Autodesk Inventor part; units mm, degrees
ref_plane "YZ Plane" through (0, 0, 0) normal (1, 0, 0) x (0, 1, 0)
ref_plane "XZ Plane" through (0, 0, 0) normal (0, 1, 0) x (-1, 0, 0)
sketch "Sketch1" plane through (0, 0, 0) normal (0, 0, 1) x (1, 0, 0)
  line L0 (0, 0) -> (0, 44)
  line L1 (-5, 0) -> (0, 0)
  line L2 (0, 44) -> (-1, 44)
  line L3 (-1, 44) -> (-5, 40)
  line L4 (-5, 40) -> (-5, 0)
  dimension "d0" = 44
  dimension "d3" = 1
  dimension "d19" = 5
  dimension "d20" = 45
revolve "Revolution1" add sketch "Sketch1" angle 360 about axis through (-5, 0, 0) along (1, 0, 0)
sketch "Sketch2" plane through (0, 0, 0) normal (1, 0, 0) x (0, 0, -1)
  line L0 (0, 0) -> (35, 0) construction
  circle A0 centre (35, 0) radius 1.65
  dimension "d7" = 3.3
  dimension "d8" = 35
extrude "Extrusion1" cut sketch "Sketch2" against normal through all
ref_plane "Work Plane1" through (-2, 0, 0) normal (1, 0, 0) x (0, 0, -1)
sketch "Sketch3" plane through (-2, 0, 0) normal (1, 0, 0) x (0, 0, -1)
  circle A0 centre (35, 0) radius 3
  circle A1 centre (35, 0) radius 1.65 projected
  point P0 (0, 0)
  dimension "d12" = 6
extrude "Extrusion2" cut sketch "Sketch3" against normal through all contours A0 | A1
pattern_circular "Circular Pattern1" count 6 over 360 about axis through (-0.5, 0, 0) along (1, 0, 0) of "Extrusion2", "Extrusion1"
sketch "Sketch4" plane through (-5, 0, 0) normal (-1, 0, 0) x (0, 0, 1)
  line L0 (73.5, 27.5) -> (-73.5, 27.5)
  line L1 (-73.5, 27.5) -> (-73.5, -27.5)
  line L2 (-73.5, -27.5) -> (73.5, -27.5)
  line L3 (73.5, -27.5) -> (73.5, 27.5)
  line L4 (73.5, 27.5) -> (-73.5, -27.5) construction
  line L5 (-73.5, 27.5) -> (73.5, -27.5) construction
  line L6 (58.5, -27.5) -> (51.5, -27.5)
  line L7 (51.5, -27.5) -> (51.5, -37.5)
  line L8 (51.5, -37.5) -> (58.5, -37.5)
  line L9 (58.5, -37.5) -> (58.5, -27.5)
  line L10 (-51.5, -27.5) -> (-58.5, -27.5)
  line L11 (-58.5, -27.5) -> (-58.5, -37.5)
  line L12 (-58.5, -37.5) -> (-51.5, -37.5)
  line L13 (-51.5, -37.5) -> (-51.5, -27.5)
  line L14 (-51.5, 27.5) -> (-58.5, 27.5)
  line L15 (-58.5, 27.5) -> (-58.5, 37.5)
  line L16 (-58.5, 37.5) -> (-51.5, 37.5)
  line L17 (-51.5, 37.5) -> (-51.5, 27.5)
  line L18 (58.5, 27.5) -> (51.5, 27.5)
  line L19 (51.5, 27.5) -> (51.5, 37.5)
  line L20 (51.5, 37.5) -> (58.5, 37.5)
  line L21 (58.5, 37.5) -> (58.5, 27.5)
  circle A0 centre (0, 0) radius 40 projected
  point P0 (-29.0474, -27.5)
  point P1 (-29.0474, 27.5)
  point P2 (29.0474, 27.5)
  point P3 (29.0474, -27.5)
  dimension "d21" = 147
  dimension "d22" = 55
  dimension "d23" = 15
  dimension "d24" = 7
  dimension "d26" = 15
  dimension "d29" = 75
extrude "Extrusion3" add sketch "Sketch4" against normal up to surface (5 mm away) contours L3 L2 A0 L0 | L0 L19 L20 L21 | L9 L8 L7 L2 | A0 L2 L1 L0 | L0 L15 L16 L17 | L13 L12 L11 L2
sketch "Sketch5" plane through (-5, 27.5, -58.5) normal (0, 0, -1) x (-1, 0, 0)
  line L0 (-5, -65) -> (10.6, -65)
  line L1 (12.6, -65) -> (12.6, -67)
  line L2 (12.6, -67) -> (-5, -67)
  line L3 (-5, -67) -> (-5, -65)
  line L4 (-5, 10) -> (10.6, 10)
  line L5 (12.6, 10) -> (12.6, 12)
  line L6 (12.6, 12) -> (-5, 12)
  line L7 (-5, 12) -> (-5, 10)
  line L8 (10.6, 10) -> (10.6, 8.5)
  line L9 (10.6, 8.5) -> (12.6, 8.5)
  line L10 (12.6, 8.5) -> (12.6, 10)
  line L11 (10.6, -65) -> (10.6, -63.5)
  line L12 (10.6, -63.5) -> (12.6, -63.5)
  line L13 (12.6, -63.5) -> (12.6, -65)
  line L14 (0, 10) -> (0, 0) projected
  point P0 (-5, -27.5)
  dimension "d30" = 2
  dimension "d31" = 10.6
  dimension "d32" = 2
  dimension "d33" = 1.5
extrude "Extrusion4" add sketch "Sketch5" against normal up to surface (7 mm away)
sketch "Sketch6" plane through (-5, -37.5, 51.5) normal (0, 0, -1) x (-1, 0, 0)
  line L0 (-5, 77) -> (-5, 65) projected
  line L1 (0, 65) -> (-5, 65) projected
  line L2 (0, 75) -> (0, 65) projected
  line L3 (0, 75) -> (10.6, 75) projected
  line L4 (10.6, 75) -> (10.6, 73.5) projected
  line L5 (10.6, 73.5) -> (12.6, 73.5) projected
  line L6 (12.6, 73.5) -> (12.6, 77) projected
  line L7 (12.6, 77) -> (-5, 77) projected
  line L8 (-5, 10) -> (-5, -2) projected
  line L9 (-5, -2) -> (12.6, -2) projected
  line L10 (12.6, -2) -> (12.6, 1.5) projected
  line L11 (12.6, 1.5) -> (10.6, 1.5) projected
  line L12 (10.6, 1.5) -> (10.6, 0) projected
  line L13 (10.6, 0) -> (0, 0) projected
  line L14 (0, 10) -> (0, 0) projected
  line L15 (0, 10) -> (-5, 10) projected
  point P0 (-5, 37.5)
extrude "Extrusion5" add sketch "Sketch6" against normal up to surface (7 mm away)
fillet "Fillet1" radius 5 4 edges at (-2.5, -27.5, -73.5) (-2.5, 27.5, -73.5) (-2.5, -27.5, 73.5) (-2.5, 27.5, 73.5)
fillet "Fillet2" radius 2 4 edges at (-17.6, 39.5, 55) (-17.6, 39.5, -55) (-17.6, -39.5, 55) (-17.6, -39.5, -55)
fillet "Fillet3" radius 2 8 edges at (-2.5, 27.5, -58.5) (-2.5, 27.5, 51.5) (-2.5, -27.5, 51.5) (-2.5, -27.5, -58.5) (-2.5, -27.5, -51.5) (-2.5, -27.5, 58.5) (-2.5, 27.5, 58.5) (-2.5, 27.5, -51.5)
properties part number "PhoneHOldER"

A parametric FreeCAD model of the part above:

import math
import FreeCAD as App
import Part
import Sketcher
from FreeCAD import Vector
Q = App.Units.Quantity


def edges_at(feature, points):
    """Names of the edges that pass closest to the given points."""
    edges = feature.Shape.Edges
    near = lambda p: min(range(len(edges)), key=lambda i: edges[i].distToShape(Part.Vertex(*p))[0])
    return sorted({f"Edge{near(p) + 1}" for p in points})


def add_polygon(sketch, points):
    """Adds a closed chain of lines whose ends are joined by coincident constraints."""
    first, n = sketch.GeometryCount, len(points)
    for a, b in zip(points, points[1:] + points[:1]):
        sketch.addGeometry(Part.LineSegment(App.Vector(*a, 0), App.Vector(*b, 0)), False)
    for i in range(n):
        sketch.addConstraint(Sketcher.Constraint("Coincident", first + i, 2, first + (i + 1) % n, 1))

doc = App.newDocument("Part")
body = doc.addObject("PartDesign::Body", "Body")

sketch1 = body.newObject("Sketcher::SketchObject", "Sketch")
sketch1.AttachmentSupport = (doc.getObject("XY_Plane"), [""])
sketch1.MapMode = "FlatFace"
add_polygon(sketch1, [(-5, 0), (0, 0), (0, 44), (-1, 44), (-5, 40)])
sketch1.addConstraint([
    Sketcher.Constraint("Horizontal", 0),
    Sketcher.Constraint("Vertical", 1),
    Sketcher.Constraint("Horizontal", 2),
    Sketcher.Constraint("Vertical", 4),
    Sketcher.Constraint("Coincident", 0, 2, -1, 1),
    Sketcher.Constraint("DistanceX", 0, 1, 0, 2, Q("5 mm")),
    Sketcher.Constraint("DistanceX", 2, 2, 2, 1, Q("1 mm")),
    Sketcher.Constraint("DistanceY", 1, 1, 1, 2, Q("44 mm")),
    Sketcher.Constraint("DistanceY", 4, 2, 4, 1, Q("40 mm")),
])
revolution = body.newObject("PartDesign::Revolution", "Revolution")
revolution.Profile = sketch1
revolution.ReferenceAxis = (sketch1, ["H_Axis"])
revolution.Angle = 360

sketch2 = body.newObject("Sketcher::SketchObject", "Sketch001")
sketch2.AttachmentSupport = (doc.getObject("YZ_Plane"), [""])
sketch2.MapMode = "FlatFace"
sketch2.addGeometry(Part.Circle(Vector(0, -35, 0), Vector(0, 0, 1), 1.6), False)
sketch2.addConstraint([
    Sketcher.Constraint("PointOnObject", 0, 3, -2),
    Sketcher.Constraint("Diameter", 0, Q("3.3 mm")),
    Sketcher.Constraint("DistanceY", 0, 3, -1, 1, Q("35 mm")),
])
pocket1 = body.newObject("PartDesign::Pocket", "Pocket")
pocket1.Profile = sketch2
pocket1.Type = "ThroughAll"

sketch3 = body.newObject("Sketcher::SketchObject", "Sketch002")
sketch3.AttachmentSupport = (doc.getObject("YZ_Plane"), [""])
sketch3.MapMode = "FlatFace"
sketch3.AttachmentOffset = App.Placement(Vector(0, 0, -2), App.Rotation())
sketch3.addGeometry(Part.Circle(Vector(0, -35, 0), Vector(0, 0, 1), 3), False)
sketch3.addConstraint([
    Sketcher.Constraint("PointOnObject", 0, 3, -2),
    Sketcher.Constraint("Diameter", 0, Q("6 mm")),
    Sketcher.Constraint("DistanceY", 0, 3, -1, 1, Q("35 mm")),
])
pocket2 = body.newObject("PartDesign::Pocket", "Pocket001")
pocket2.Profile = sketch3
pocket2.Type = "ThroughAll"
doc.recompute()

polarpattern = body.newObject("PartDesign::PolarPattern", "PolarPattern")
polarpattern.Originals = [pocket2, pocket1]
polarpattern.Axis = (doc.getObject("X_Axis"), [""])
polarpattern.Angle = 360
polarpattern.Occurrences = 6
body.Tip = polarpattern

sketch4 = body.newObject("Sketcher::SketchObject", "Sketch003")
sketch4.AttachmentSupport = (doc.getObject("YZ_Plane"), [""])
sketch4.MapMode = "FlatFace"
sketch4.AttachmentOffset = App.Placement(Vector(0, 0, -5), App.Rotation())
sketch4.addGeometry([
    Part.LineSegment(Vector(-28, 74, 0), Vector(28, 74, 0)),
    Part.LineSegment(Vector(28, 74, 0), Vector(28, 58, 0)),
    Part.LineSegment(Vector(28, 58, 0), Vector(38, 58, 0)),
    Part.LineSegment(Vector(38, 58, 0), Vector(38, 52, 0)),
    Part.LineSegment(Vector(38, 52, 0), Vector(28, 52, 0)),
    Part.LineSegment(Vector(28, 52, 0), Vector(28, 29, 0)),
    Part.ArcOfCircle(Part.Circle(Vector(0, 0, 0), Vector(0, 0, 1), 40), math.radians(47), math.radians(133)),
    Part.LineSegment(Vector(-28, 29, 0), Vector(-28, 52, 0)),
    Part.LineSegment(Vector(-28, 52, 0), Vector(-38, 52, 0)),
    Part.LineSegment(Vector(-38, 52, 0), Vector(-38, 58, 0)),
    Part.LineSegment(Vector(-38, 58, 0), Vector(-28, 58, 0)),
    Part.LineSegment(Vector(-28, 58, 0), Vector(-28, 74, 0)),
    Part.ArcOfCircle(Part.Circle(Vector(0, 0, 0), Vector(0, 0, 1), 40), math.radians(-133), math.radians(-47)),
    Part.LineSegment(Vector(28, -29, 0), Vector(28, -52, 0)),
    Part.LineSegment(Vector(28, -52, 0), Vector(38, -52, 0)),
    Part.LineSegment(Vector(38, -52, 0), Vector(38, -58, 0)),
    Part.LineSegment(Vector(38, -58, 0), Vector(28, -58, 0)),
    Part.LineSegment(Vector(28, -58, 0), Vector(28, -74, 0)),
    Part.LineSegment(Vector(28, -74, 0), Vector(-28, -74, 0)),
    Part.LineSegment(Vector(-28, -74, 0), Vector(-28, -58, 0)),
    Part.LineSegment(Vector(-28, -58, 0), Vector(-38, -58, 0)),
    Part.LineSegment(Vector(-38, -58, 0), Vector(-38, -52, 0)),
    Part.LineSegment(Vector(-38, -52, 0), Vector(-28, -52, 0)),
    Part.LineSegment(Vector(-28, -52, 0), Vector(-28, -29, 0)),
], False)
sketch4.addConstraint([
    Sketcher.Constraint("Coincident", 0, 2, 1, 1),
    Sketcher.Constraint("Coincident", 1, 2, 2, 1),
    Sketcher.Constraint("Coincident", 2, 2, 3, 1),
    Sketcher.Constraint("Coincident", 3, 2, 4, 1),
    Sketcher.Constraint("Coincident", 4, 2, 5, 1),
    Sketcher.Constraint("Coincident", 5, 2, 6, 1),
    Sketcher.Constraint("Coincident", 6, 2, 7, 1),
    Sketcher.Constraint("Coincident", 7, 2, 8, 1),
    Sketcher.Constraint("Coincident", 8, 2, 9, 1),
    Sketcher.Constraint("Coincident", 9, 2, 10, 1),
    Sketcher.Constraint("Coincident", 10, 2, 11, 1),
    Sketcher.Constraint("Coincident", 11, 2, 0, 1),
    Sketcher.Constraint("Coincident", 12, 2, 13, 1),
    Sketcher.Constraint("Coincident", 13, 2, 14, 1),
    Sketcher.Constraint("Coincident", 14, 2, 15, 1),
    Sketcher.Constraint("Coincident", 15, 2, 16, 1),
    Sketcher.Constraint("Coincident", 16, 2, 17, 1),
    Sketcher.Constraint("Coincident", 17, 2, 18, 1),
    Sketcher.Constraint("Coincident", 18, 2, 19, 1),
    Sketcher.Constraint("Coincident", 19, 2, 20, 1),
    Sketcher.Constraint("Coincident", 20, 2, 21, 1),
    Sketcher.Constraint("Coincident", 21, 2, 22, 1),
    Sketcher.Constraint("Coincident", 22, 2, 23, 1),
    Sketcher.Constraint("Coincident", 23, 2, 12, 1),
    Sketcher.Constraint("Horizontal", 0),
    Sketcher.Constraint("Vertical", 1),
    Sketcher.Constraint("Horizontal", 2),
    Sketcher.Constraint("Vertical", 3),
    Sketcher.Constraint("Horizontal", 4),
    Sketcher.Constraint("Vertical", 5),
    Sketcher.Constraint("Vertical", 7),
    Sketcher.Constraint("Horizontal", 8),
    Sketcher.Constraint("Vertical", 9),
    Sketcher.Constraint("Horizontal", 10),
    Sketcher.Constraint("Vertical", 11),
    Sketcher.Constraint("Vertical", 13),
    Sketcher.Constraint("Horizontal", 14),
    Sketcher.Constraint("Vertical", 15),
    Sketcher.Constraint("Horizontal", 16),
    Sketcher.Constraint("Vertical", 17),
    Sketcher.Constraint("Horizontal", 18),
    Sketcher.Constraint("Vertical", 19),
    Sketcher.Constraint("Horizontal", 20),
    Sketcher.Constraint("Vertical", 21),
    Sketcher.Constraint("Horizontal", 22),
    Sketcher.Constraint("Vertical", 23),
    Sketcher.Constraint("Coincident", 6, 3, -1, 1),
    Sketcher.Constraint("Coincident", 12, 3, -1, 1),
    Sketcher.Constraint("Equal", 6, 12),
    Sketcher.Constraint("Symmetric", 7, 2, 13, 2, -1, 1),
    Sketcher.Constraint("Symmetric", 9, 2, 15, 2, -1, 1),
    Sketcher.Constraint("Symmetric", 11, 2, 17, 2, -1, 1),
    Sketcher.Constraint("Symmetric", 1, 2, 19, 2, -1, 1),
    Sketcher.Constraint("Symmetric", 3, 2, 21, 2, -1, 1),
    Sketcher.Constraint("Symmetric", 4, 2, 7, 2, -2),
    Sketcher.Constraint("Symmetric", 2, 2, 9, 2, -2),
    Sketcher.Constraint("Horizontal", 12, 2, 23, 2),
    Sketcher.Constraint("Vertical", 1, 2, 4, 2),
    Sketcher.Constraint("Vertical", 7, 2, 10, 2),
    Sketcher.Constraint("DistanceX", 0, 1, 0, 2, Q("55 mm")),
    Sketcher.Constraint("DistanceY", 1, 2, 1, 1, Q("15 mm")),
    Sketcher.Constraint("DistanceY", 3, 2, 3, 1, Q("7 mm")),
    Sketcher.Constraint("Radius", 6, Q("40 mm")),
    Sketcher.Constraint("DistanceX", 2, 1, 2, 2, Q("10 mm")),
    Sketcher.Constraint("DistanceY", -1, 1, 0, 2, Q("73.5 mm")),
])
pad1 = body.newObject("PartDesign::Pad", "Pad")
pad1.Profile = sketch4
pad1.Length = 5

sketch5 = body.newObject("Sketcher::SketchObject", "Sketch004")
sketch5.AttachmentSupport = (doc.getObject("XY_Plane"), [""])
sketch5.MapMode = "FlatFace"
sketch5.AttachmentOffset = App.Placement(Vector(0, 0, -58.5), App.Rotation())
add_polygon(sketch5, [(-15.6, -37.5), (0, -37.5), (0, -39.5), (-17.6, -39.5), (-17.6, -36), (-15.6, -36)])
add_polygon(sketch5, [(0, 39.5), (0, 37.5), (-15.6, 37.5), (-15.6, 36), (-17.6, 36), (-17.6, 39.5)])
sketch5.addConstraint([
    Sketcher.Constraint("Horizontal", 0),
    Sketcher.Constraint("Vertical", 1),
    Sketcher.Constraint("Horizontal", 2),
    Sketcher.Constraint("Vertical", 3),
    Sketcher.Constraint("Horizontal", 4),
    Sketcher.Constraint("Vertical", 5),
    Sketcher.Constraint("Vertical", 6),
    Sketcher.Constraint("Horizontal", 7),
    Sketcher.Constraint("Vertical", 8),
    Sketcher.Constraint("Horizontal", 9),
    Sketcher.Constraint("Vertical", 10),
    Sketcher.Constraint("Horizontal", 11),
    Sketcher.Constraint("Symmetric", 0, 2, 6, 2, -1, 1),
    Sketcher.Constraint("Symmetric", 4, 2, 8, 2, -1),
    Sketcher.Constraint("Symmetric", 2, 2, 10, 2, -1),
    Sketcher.Constraint("PointOnObject", 0, 2, -2),
    Sketcher.Constraint("Equal", 9, 1),
    Sketcher.Constraint("DistanceX", 4, 1, 4, 2, Q("2 mm")),
    Sketcher.Constraint("DistanceY", 5, 2, 5, 1, Q("1.5 mm")),
    Sketcher.Constraint("DistanceX", 0, 1, 0, 2, Q("15.6 mm")),
    Sketcher.Constraint("DistanceY", 3, 2, -1, 1, Q("36 mm")),
])
pad2 = body.newObject("PartDesign::Pad", "Pad001")
pad2.Profile = sketch5
pad2.Length = 7

sketch6 = body.newObject("Sketcher::SketchObject", "Sketch005")
sketch6.AttachmentSupport = (doc.getObject("XY_Plane"), [""])
sketch6.MapMode = "FlatFace"
sketch6.AttachmentOffset = App.Placement(Vector(0, 0, 51.5), App.Rotation())
add_polygon(sketch6, [(-17.6, 39.5), (0, 39.5), (0, 27.5), (-5, 27.5), (-5, 37.5), (-15.6, 37.5), (-15.6, 36), (-17.6, 36)])
add_polygon(sketch6, [(-5, -27.5), (0, -27.5), (0, -39.5), (-17.6, -39.5), (-17.6, -36), (-15.6, -36), (-15.6, -37.5), (-5, -37.5)])
sketch6.addConstraint([
    Sketcher.Constraint("Horizontal", 0),
    Sketcher.Constraint("Vertical", 1),
    Sketcher.Constraint("Horizontal", 2),
    Sketcher.Constraint("Vertical", 3),
    Sketcher.Constraint("Horizontal", 4),
    Sketcher.Constraint("Vertical", 5),
    Sketcher.Constraint("Horizontal", 6),
    Sketcher.Constraint("Vertical", 7),
    Sketcher.Constraint("Horizontal", 8),
    Sketcher.Constraint("Vertical", 9),
    Sketcher.Constraint("Horizontal", 10),
    Sketcher.Constraint("Vertical", 11),
    Sketcher.Constraint("Horizontal", 12),
    Sketcher.Constraint("Vertical", 13),
    Sketcher.Constraint("Horizontal", 14),
    Sketcher.Constraint("Vertical", 15),
    Sketcher.Constraint("Symmetric", 1, 2, 8, 2, -1, 1),
    Sketcher.Constraint("Symmetric", 0, 2, 9, 2, -1),
    Sketcher.Constraint("Symmetric", 6, 2, 11, 2, -1),
    Sketcher.Constraint("Symmetric", 4, 2, 13, 2, -1),
    Sketcher.Constraint("Vertical", 3, 2, 14, 2),
    Sketcher.Constraint("DistanceX", 2, 2, 2, 1, Q("5 mm")),
    Sketcher.Constraint("DistanceX", 6, 2, 6, 1, Q("2 mm")),
    Sketcher.Constraint("DistanceY", 1, 2, 1, 1, Q("12 mm")),
    Sketcher.Constraint("DistanceY", 3, 1, 3, 2, Q("10 mm")),
    Sketcher.Constraint("DistanceX", 0, 1, 0, 2, Q("17.6 mm")),
    Sketcher.Constraint("DistanceY", 5, 2, 5, 1, Q("1.5 mm")),
    Sketcher.Constraint("DistanceY", -1, 1, 5, 2, Q("36 mm")),
])
pad3 = body.newObject("PartDesign::Pad", "Pad002")
pad3.Profile = sketch6
pad3.Length = 7
doc.recompute()

fillet = body.newObject("PartDesign::Fillet", "Fillet")
fillet.Base = (pad3, edges_at(pad3, [
    (-2.5, -27.5, -73.5),
    (-2.5, 27.5, -73.5),
    (-2.5, -27.5, 73.5),
    (-2.5, 27.5, 73.5),
]))
fillet.Radius = 5
doc.recompute()

fillet2 = body.newObject("PartDesign::Fillet", "Fillet001")
fillet2.Base = (fillet, edges_at(fillet, [
    (-17.6, 39.5, 55),
    (-17.6, 39.5, -55),
    (-17.6, -39.5, 55),
    (-17.6, -39.5, -55),
]))
fillet2.Radius = 2
doc.recompute()

fillet3 = body.newObject("PartDesign::Fillet", "Fillet002")
fillet3.Base = (fillet2, edges_at(fillet2, [
    (-2.5, 27.5, -58.5),
    (-2.5, 27.5, 51.5),
    (-2.5, -27.5, 51.5),
    (-2.5, -27.5, -58.5),
    (-2.5, -27.5, -51.5),
    (-2.5, -27.5, 58.5),
    (-2.5, 27.5, 58.5),
    (-2.5, 27.5, -51.5),
]))
fillet3.Radius = 2

doc.recompute()
